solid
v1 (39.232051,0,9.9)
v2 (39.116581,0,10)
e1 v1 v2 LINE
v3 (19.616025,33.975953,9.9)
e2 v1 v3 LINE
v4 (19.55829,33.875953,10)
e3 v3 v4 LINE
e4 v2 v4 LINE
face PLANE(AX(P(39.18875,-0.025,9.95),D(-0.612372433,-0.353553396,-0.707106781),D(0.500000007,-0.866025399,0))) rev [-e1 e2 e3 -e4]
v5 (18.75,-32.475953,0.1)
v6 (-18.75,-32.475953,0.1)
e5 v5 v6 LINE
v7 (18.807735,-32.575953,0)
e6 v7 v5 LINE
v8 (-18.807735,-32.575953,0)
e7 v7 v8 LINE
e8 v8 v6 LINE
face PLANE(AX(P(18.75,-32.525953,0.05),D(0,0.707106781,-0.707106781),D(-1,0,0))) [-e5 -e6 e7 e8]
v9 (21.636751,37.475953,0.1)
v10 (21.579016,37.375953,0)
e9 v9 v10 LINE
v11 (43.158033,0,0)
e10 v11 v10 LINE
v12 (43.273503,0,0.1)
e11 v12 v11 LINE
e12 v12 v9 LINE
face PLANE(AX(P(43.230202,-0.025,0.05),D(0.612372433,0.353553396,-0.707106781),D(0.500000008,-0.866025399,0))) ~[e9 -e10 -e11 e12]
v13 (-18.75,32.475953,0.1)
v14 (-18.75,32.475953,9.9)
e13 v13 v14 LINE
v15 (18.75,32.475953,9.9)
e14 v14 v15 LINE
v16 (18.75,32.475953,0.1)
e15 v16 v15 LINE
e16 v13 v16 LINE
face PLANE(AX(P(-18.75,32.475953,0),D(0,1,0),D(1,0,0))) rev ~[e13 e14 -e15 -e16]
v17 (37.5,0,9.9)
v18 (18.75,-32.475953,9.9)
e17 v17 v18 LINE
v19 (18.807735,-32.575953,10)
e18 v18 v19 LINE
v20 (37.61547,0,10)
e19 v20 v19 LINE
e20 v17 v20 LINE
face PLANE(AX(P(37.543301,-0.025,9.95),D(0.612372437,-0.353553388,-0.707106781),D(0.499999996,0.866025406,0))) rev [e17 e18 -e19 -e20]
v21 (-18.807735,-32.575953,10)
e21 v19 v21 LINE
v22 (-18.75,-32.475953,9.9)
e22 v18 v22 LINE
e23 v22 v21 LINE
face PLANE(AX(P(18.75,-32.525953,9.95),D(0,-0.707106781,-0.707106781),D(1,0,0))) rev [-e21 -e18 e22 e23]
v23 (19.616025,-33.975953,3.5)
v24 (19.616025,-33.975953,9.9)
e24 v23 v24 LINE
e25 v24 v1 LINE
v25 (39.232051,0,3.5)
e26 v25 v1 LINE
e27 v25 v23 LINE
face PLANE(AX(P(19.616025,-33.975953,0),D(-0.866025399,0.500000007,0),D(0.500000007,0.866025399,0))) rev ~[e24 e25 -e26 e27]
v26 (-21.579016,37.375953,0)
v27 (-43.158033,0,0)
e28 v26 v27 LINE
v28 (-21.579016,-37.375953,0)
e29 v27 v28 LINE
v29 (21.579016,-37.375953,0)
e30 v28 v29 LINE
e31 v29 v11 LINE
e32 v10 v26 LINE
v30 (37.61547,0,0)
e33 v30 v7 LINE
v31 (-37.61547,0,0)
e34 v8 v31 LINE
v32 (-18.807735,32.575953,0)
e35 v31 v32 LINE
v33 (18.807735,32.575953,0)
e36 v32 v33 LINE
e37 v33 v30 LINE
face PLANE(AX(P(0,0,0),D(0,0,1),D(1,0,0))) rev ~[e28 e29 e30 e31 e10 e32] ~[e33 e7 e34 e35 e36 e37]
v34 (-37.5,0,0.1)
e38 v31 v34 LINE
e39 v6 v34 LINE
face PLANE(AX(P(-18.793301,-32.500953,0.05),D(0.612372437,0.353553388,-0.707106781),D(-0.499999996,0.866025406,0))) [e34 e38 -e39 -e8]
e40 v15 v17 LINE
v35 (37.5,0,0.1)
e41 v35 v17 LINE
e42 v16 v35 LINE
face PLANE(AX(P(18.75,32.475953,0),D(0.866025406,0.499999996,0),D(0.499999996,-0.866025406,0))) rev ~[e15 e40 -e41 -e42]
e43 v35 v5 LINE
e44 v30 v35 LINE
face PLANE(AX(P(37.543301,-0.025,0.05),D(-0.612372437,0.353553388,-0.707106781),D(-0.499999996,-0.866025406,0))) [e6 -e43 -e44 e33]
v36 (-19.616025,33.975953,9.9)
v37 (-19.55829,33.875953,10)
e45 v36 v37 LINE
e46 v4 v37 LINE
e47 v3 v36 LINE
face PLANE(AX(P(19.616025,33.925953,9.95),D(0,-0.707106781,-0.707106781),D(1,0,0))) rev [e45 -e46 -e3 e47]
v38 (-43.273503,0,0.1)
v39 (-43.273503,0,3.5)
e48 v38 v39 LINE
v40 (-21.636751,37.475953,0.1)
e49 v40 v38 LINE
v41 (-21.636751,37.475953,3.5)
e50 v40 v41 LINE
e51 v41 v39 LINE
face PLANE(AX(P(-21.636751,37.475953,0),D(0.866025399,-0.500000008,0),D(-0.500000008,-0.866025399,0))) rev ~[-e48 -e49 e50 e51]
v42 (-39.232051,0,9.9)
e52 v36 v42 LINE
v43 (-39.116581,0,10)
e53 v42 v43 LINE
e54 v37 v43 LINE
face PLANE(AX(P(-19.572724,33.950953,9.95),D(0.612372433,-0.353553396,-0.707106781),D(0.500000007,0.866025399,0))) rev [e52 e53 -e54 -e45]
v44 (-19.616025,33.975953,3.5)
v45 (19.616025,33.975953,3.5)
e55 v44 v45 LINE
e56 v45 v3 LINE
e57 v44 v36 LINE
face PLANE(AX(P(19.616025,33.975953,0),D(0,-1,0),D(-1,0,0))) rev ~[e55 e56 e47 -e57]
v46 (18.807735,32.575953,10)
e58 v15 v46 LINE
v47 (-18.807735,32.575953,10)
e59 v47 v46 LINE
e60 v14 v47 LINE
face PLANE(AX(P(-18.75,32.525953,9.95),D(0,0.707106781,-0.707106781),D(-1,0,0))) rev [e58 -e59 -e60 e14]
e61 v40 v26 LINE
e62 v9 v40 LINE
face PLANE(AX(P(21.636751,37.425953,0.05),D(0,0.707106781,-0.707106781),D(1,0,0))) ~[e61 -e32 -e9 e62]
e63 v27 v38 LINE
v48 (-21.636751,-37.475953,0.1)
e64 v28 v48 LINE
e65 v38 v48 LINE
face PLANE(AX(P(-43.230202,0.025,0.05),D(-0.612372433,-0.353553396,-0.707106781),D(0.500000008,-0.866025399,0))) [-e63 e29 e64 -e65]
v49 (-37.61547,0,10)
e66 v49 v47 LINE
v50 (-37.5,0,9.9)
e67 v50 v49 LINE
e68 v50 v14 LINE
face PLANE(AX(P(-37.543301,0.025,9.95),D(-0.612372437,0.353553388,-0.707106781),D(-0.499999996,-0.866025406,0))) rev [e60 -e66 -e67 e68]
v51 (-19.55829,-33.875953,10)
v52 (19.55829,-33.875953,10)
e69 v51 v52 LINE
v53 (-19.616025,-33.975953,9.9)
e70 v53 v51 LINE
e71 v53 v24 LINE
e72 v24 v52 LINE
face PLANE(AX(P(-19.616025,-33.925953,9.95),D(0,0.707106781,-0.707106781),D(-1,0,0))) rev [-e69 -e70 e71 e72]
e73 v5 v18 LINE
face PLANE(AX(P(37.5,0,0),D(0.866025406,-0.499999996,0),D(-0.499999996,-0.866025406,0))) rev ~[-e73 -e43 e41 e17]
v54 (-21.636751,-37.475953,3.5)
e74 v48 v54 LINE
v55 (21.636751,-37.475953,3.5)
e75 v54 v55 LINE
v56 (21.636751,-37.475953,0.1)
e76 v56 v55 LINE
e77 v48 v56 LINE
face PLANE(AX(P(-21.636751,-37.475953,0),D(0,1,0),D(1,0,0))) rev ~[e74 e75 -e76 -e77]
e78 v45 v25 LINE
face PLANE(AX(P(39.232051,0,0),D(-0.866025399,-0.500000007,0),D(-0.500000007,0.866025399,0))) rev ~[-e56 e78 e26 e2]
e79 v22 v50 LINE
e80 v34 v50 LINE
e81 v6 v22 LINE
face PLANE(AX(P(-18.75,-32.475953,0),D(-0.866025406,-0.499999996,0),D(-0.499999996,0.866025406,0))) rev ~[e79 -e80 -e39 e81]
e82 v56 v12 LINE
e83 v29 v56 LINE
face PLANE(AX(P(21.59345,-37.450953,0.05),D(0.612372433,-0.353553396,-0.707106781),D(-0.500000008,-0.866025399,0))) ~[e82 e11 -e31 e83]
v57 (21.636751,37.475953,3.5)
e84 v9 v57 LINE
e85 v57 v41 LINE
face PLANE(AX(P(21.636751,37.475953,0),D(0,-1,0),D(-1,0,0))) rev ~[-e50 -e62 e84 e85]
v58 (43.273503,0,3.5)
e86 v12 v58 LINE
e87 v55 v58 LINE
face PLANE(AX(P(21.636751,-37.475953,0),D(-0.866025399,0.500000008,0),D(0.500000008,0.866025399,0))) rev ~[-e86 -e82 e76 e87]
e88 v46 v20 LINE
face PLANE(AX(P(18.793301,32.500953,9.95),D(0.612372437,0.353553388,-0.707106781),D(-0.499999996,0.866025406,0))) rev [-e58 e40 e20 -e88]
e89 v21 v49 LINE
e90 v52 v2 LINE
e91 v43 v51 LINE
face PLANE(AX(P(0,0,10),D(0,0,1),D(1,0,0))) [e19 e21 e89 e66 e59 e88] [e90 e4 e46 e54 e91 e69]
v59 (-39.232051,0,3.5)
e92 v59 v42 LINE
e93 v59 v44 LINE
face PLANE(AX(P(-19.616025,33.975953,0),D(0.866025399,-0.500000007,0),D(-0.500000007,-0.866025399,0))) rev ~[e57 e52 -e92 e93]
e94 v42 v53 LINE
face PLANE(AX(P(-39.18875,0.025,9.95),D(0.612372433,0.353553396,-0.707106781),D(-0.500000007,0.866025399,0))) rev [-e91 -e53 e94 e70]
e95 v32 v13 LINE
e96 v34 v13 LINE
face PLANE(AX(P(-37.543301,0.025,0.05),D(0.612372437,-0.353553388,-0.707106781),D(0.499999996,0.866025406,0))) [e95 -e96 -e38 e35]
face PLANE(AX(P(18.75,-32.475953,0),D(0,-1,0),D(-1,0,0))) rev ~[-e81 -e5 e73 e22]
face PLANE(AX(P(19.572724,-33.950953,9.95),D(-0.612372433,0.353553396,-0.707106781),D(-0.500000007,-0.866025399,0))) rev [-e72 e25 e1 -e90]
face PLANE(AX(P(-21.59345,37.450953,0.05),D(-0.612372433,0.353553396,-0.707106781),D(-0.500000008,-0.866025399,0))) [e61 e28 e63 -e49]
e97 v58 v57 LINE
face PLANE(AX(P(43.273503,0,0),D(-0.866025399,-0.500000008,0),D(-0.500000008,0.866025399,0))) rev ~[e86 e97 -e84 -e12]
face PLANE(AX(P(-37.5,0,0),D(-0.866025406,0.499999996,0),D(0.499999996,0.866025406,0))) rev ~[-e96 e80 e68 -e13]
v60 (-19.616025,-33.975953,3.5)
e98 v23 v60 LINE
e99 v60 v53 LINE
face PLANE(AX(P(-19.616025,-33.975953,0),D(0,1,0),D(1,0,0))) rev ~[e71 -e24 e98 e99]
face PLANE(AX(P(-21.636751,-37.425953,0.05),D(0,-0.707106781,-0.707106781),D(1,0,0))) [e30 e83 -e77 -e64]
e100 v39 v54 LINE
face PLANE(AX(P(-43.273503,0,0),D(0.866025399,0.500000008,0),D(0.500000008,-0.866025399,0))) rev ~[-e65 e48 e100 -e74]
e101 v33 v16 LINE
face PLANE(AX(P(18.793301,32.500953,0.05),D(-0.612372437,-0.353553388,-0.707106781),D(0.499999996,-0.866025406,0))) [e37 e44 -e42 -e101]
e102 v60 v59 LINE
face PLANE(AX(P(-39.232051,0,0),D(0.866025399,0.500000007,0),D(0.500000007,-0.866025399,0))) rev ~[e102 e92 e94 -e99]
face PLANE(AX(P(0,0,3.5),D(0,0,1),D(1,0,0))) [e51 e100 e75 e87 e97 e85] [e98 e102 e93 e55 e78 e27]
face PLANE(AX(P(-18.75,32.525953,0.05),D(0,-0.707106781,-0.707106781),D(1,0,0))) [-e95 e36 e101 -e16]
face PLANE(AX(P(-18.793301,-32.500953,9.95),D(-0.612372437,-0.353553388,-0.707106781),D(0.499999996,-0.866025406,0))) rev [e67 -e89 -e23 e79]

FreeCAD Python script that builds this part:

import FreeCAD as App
import Part
import Sketcher

V = App.Vector
Q = App.Units.Quantity


def edges_at(feature, points):
    """Names of the edges that pass closest to the given points."""
    edges = feature.Shape.Edges
    near = lambda p: min(range(len(edges)), key=lambda i: edges[i].distToShape(Part.Vertex(*p))[0])
    return sorted({f"Edge{near(p) + 1}" for p in points})

doc = App.newDocument("Part")
body = doc.addObject("PartDesign::Body", "Body")

# Sketch on XY plane
sketch1 = doc.addObject("Sketcher::SketchObject", "Sketch")
body.addObject(sketch1)
sketch1.AttachmentSupport = (doc.XY_Plane, [""])
sketch1.MapMode = "FlatFace"
sketch1.addGeometry(Part.LineSegment(V(39, 0, 0), V(20, 34, 0)), False)
sketch1.addGeometry(Part.LineSegment(V(20, 34, 0), V(-20, 34, 0)), False)
sketch1.addGeometry(Part.LineSegment(V(-20, 34, 0), V(-39, 0, 0)), False)
sketch1.addGeometry(Part.LineSegment(V(-39, 0, 0), V(-20, -34, 0)), False)
sketch1.addGeometry(Part.LineSegment(V(-20, -34, 0), V(20, -34, 0)), False)
sketch1.addGeometry(Part.LineSegment(V(20, -34, 0), V(39, 0, 0)), False)
sketch1.addGeometry(Part.LineSegment(V(-38, 0, 0), V(-19, 32, 0)), False)
sketch1.addGeometry(Part.LineSegment(V(-19, 32, 0), V(19, 32, 0)), False)
sketch1.addGeometry(Part.LineSegment(V(19, 32, 0), V(38, 0, 0)), False)
sketch1.addGeometry(Part.LineSegment(V(38, 0, 0), V(19, -32, 0)), False)
sketch1.addGeometry(Part.LineSegment(V(19, -32, 0), V(-19, -32, 0)), False)
sketch1.addGeometry(Part.LineSegment(V(-19, -32, 0), V(-38, 0, 0)), False)
sketch1.addConstraint(Sketcher.Constraint("Coincident", 0, 2, 1, 1))
sketch1.addConstraint(Sketcher.Constraint("Coincident", 1, 2, 2, 1))
sketch1.addConstraint(Sketcher.Constraint("Coincident", 2, 2, 3, 1))
sketch1.addConstraint(Sketcher.Constraint("Coincident", 3, 2, 4, 1))
sketch1.addConstraint(Sketcher.Constraint("Coincident", 4, 2, 5, 1))
sketch1.addConstraint(Sketcher.Constraint("Coincident", 5, 2, 0, 1))
sketch1.addConstraint(Sketcher.Constraint("Coincident", 6, 2, 7, 1))
sketch1.addConstraint(Sketcher.Constraint("Coincident", 7, 2, 8, 1))
sketch1.addConstraint(Sketcher.Constraint("Coincident", 8, 2, 9, 1))
sketch1.addConstraint(Sketcher.Constraint("Coincident", 9, 2, 10, 1))
sketch1.addConstraint(Sketcher.Constraint("Coincident", 10, 2, 11, 1))
sketch1.addConstraint(Sketcher.Constraint("Coincident", 11, 2, 6, 1))
sketch1.addConstraint(Sketcher.Constraint("Horizontal", 1))
sketch1.addConstraint(Sketcher.Constraint("Horizontal", 4))
sketch1.addConstraint(Sketcher.Constraint("Horizontal", 7))
sketch1.addConstraint(Sketcher.Constraint("Horizontal", 10))
sketch1.addConstraint(Sketcher.Constraint("Symmetric", 0, 2, 3, 2, -1, 1))
sketch1.addConstraint(Sketcher.Constraint("Symmetric", 2, 2, 5, 2, -1, 1))
sketch1.addConstraint(Sketcher.Constraint("Symmetric", 6, 2, 9, 2, -1, 1))
sketch1.addConstraint(Sketcher.Constraint("Symmetric", 8, 2, 11, 2, -1, 1))
sketch1.addConstraint(Sketcher.Constraint("PointOnObject", 2, 2, -1))
sketch1.addConstraint(Sketcher.Constraint("PointOnObject", 8, 2, -1))
sketch1.addConstraint(Sketcher.Constraint("Parallel", 2, 5))
sketch1.addConstraint(Sketcher.Constraint("Parallel", 5, 6))
sketch1.addConstraint(Sketcher.Constraint("Parallel", 3, 8))
sketch1.addConstraint(Sketcher.Constraint("Parallel", 8, 11))
sketch1.addConstraint(Sketcher.Constraint("Vertical", 1, 2, 3, 2))
sketch1.addConstraint(Sketcher.Constraint("Angle", 0, Q("120 deg")))
sketch1.addConstraint(Sketcher.Constraint("DistanceX", 7, 1, 7, 2, Q("37.5 mm")))
sketch1.addConstraint(Sketcher.Constraint("Distance", 6, Q("37.5 mm")))
sketch1.addConstraint(Sketcher.Constraint("DistanceY", 6, 2, 1, 2, Q("1.5 mm")))
sketch1.addConstraint(Sketcher.Constraint("DistanceX", 1, 2, 1, 1, Q("39.23205 mm")))
pad1 = doc.addObject("PartDesign::Pad", "Pad")
body.addObject(pad1)
pad1.Profile = sketch1
pad1.Length = 10

# Sketch on XY plane
sketch2 = doc.addObject("Sketcher::SketchObject", "Sketch001")
body.addObject(sketch2)
sketch2.AttachmentSupport = (doc.XY_Plane, [""])
sketch2.MapMode = "FlatFace"
sketch2.addGeometry(Part.LineSegment(V(43, 0, 0), V(22, 37, 0)), False)
sketch2.addGeometry(Part.LineSegment(V(22, 37, 0), V(-22, 37, 0)), False)
sketch2.addGeometry(Part.LineSegment(V(-22, 37, 0), V(-43, 0, 0)), False)
sketch2.addGeometry(Part.LineSegment(V(-43, 0, 0), V(-22, -37, 0)), False)
sketch2.addGeometry(Part.LineSegment(V(-22, -37, 0), V(22, -37, 0)), False)
sketch2.addGeometry(Part.LineSegment(V(22, -37, 0), V(43, 0, 0)), False)
sketch2.addGeometry(Part.LineSegment(V(-39, 0, 0), V(-20, 34, 0)), False)
sketch2.addGeometry(Part.LineSegment(V(-20, 34, 0), V(20, 34, 0)), False)
sketch2.addGeometry(Part.LineSegment(V(20, 34, 0), V(39, 0, 0)), False)
sketch2.addGeometry(Part.LineSegment(V(39, 0, 0), V(20, -34, 0)), False)
sketch2.addGeometry(Part.LineSegment(V(20, -34, 0), V(-20, -34, 0)), False)
sketch2.addGeometry(Part.LineSegment(V(-20, -34, 0), V(-39, 0, 0)), False)
sketch2.addConstraint(Sketcher.Constraint("Coincident", 0, 2, 1, 1))
sketch2.addConstraint(Sketcher.Constraint("Coincident", 1, 2, 2, 1))
sketch2.addConstraint(Sketcher.Constraint("Coincident", 2, 2, 3, 1))
sketch2.addConstraint(Sketcher.Constraint("Coincident", 3, 2, 4, 1))
sketch2.addConstraint(Sketcher.Constraint("Coincident", 4, 2, 5, 1))
sketch2.addConstraint(Sketcher.Constraint("Coincident", 5, 2, 0, 1))
sketch2.addConstraint(Sketcher.Constraint("Coincident", 6, 2, 7, 1))
sketch2.addConstraint(Sketcher.Constraint("Coincident", 7, 2, 8, 1))
sketch2.addConstraint(Sketcher.Constraint("Coincident", 8, 2, 9, 1))
sketch2.addConstraint(Sketcher.Constraint("Coincident", 9, 2, 10, 1))
sketch2.addConstraint(Sketcher.Constraint("Coincident", 10, 2, 11, 1))
sketch2.addConstraint(Sketcher.Constraint("Coincident", 11, 2, 6, 1))
sketch2.addConstraint(Sketcher.Constraint("Horizontal", 1))
sketch2.addConstraint(Sketcher.Constraint("Horizontal", 4))
sketch2.addConstraint(Sketcher.Constraint("Horizontal", 7))
sketch2.addConstraint(Sketcher.Constraint("Horizontal", 10))
sketch2.addConstraint(Sketcher.Constraint("Symmetric", 0, 2, 3, 2, -1, 1))
sketch2.addConstraint(Sketcher.Constraint("Symmetric", 2, 2, 5, 2, -1, 1))
sketch2.addConstraint(Sketcher.Constraint("Symmetric", 6, 2, 9, 2, -1, 1))
sketch2.addConstraint(Sketcher.Constraint("Symmetric", 8, 2, 11, 2, -1, 1))
sketch2.addConstraint(Sketcher.Constraint("PointOnObject", 2, 2, -1))
sketch2.addConstraint(Sketcher.Constraint("PointOnObject", 8, 2, -1))
sketch2.addConstraint(Sketcher.Constraint("Parallel", 2, 5))
sketch2.addConstraint(Sketcher.Constraint("Parallel", 5, 6))
sketch2.addConstraint(Sketcher.Constraint("Parallel", 3, 8))
sketch2.addConstraint(Sketcher.Constraint("Parallel", 8, 11))
sketch2.addConstraint(Sketcher.Constraint("Vertical", 1, 2, 3, 2))
sketch2.addConstraint(Sketcher.Constraint("Angle", 0, Q("120.000001 deg")))
sketch2.addConstraint(Sketcher.Constraint("DistanceY", 6, 2, 1, 2, Q("3.5 mm")))
sketch2.addConstraint(Sketcher.Constraint("DistanceX", 7, 1, 7, 2, Q("39.23205 mm")))
sketch2.addConstraint(Sketcher.Constraint("DistanceX", 0, 2, 8, 2, Q("17.5953 mm")))
sketch2.addConstraint(Sketcher.Constraint("Distance", 6, Q("39.232051 mm")))
pad2 = doc.addObject("PartDesign::Pad", "Pad001")
body.addObject(pad2)
pad2.Profile = sketch2
pad2.Length = 3.5
doc.recompute()

chamfer = doc.addObject("PartDesign::Chamfer", "Chamfer")
body.addObject(chamfer)
chamfer.Base = (pad2, edges_at(pad2, [
    (0, -37.476, 0),
    (32.455, -18.738, 0),
    (32.455, 18.738, 0),
    (0, 37.476, 0),
    (-32.455, 18.738, 0),
    (-32.455, -18.738, 0),
    (-28.125, -16.238, 0),
    (-28.125, 16.238, 0),
    (0, 32.476, 0),
    (28.125, 16.238, 0),
    (28.125, -16.238, 0),
    (0, -32.476, 0),
    (29.424, 16.988, 10),
    (0, 33.976, 10),
    (-29.424, 16.988, 10),
    (-29.424, -16.988, 10),
    (0, -33.976, 10),
    (29.424, -16.988, 10),
    (0, 32.476, 10),
    (28.125, 16.238, 10),
    (28.125, -16.238, 10),
    (0, -32.476, 10),
    (-28.125, -16.238, 10),
    (-28.125, 16.238, 10),
]))
chamfer.Size = 0.1

doc.recompute()
